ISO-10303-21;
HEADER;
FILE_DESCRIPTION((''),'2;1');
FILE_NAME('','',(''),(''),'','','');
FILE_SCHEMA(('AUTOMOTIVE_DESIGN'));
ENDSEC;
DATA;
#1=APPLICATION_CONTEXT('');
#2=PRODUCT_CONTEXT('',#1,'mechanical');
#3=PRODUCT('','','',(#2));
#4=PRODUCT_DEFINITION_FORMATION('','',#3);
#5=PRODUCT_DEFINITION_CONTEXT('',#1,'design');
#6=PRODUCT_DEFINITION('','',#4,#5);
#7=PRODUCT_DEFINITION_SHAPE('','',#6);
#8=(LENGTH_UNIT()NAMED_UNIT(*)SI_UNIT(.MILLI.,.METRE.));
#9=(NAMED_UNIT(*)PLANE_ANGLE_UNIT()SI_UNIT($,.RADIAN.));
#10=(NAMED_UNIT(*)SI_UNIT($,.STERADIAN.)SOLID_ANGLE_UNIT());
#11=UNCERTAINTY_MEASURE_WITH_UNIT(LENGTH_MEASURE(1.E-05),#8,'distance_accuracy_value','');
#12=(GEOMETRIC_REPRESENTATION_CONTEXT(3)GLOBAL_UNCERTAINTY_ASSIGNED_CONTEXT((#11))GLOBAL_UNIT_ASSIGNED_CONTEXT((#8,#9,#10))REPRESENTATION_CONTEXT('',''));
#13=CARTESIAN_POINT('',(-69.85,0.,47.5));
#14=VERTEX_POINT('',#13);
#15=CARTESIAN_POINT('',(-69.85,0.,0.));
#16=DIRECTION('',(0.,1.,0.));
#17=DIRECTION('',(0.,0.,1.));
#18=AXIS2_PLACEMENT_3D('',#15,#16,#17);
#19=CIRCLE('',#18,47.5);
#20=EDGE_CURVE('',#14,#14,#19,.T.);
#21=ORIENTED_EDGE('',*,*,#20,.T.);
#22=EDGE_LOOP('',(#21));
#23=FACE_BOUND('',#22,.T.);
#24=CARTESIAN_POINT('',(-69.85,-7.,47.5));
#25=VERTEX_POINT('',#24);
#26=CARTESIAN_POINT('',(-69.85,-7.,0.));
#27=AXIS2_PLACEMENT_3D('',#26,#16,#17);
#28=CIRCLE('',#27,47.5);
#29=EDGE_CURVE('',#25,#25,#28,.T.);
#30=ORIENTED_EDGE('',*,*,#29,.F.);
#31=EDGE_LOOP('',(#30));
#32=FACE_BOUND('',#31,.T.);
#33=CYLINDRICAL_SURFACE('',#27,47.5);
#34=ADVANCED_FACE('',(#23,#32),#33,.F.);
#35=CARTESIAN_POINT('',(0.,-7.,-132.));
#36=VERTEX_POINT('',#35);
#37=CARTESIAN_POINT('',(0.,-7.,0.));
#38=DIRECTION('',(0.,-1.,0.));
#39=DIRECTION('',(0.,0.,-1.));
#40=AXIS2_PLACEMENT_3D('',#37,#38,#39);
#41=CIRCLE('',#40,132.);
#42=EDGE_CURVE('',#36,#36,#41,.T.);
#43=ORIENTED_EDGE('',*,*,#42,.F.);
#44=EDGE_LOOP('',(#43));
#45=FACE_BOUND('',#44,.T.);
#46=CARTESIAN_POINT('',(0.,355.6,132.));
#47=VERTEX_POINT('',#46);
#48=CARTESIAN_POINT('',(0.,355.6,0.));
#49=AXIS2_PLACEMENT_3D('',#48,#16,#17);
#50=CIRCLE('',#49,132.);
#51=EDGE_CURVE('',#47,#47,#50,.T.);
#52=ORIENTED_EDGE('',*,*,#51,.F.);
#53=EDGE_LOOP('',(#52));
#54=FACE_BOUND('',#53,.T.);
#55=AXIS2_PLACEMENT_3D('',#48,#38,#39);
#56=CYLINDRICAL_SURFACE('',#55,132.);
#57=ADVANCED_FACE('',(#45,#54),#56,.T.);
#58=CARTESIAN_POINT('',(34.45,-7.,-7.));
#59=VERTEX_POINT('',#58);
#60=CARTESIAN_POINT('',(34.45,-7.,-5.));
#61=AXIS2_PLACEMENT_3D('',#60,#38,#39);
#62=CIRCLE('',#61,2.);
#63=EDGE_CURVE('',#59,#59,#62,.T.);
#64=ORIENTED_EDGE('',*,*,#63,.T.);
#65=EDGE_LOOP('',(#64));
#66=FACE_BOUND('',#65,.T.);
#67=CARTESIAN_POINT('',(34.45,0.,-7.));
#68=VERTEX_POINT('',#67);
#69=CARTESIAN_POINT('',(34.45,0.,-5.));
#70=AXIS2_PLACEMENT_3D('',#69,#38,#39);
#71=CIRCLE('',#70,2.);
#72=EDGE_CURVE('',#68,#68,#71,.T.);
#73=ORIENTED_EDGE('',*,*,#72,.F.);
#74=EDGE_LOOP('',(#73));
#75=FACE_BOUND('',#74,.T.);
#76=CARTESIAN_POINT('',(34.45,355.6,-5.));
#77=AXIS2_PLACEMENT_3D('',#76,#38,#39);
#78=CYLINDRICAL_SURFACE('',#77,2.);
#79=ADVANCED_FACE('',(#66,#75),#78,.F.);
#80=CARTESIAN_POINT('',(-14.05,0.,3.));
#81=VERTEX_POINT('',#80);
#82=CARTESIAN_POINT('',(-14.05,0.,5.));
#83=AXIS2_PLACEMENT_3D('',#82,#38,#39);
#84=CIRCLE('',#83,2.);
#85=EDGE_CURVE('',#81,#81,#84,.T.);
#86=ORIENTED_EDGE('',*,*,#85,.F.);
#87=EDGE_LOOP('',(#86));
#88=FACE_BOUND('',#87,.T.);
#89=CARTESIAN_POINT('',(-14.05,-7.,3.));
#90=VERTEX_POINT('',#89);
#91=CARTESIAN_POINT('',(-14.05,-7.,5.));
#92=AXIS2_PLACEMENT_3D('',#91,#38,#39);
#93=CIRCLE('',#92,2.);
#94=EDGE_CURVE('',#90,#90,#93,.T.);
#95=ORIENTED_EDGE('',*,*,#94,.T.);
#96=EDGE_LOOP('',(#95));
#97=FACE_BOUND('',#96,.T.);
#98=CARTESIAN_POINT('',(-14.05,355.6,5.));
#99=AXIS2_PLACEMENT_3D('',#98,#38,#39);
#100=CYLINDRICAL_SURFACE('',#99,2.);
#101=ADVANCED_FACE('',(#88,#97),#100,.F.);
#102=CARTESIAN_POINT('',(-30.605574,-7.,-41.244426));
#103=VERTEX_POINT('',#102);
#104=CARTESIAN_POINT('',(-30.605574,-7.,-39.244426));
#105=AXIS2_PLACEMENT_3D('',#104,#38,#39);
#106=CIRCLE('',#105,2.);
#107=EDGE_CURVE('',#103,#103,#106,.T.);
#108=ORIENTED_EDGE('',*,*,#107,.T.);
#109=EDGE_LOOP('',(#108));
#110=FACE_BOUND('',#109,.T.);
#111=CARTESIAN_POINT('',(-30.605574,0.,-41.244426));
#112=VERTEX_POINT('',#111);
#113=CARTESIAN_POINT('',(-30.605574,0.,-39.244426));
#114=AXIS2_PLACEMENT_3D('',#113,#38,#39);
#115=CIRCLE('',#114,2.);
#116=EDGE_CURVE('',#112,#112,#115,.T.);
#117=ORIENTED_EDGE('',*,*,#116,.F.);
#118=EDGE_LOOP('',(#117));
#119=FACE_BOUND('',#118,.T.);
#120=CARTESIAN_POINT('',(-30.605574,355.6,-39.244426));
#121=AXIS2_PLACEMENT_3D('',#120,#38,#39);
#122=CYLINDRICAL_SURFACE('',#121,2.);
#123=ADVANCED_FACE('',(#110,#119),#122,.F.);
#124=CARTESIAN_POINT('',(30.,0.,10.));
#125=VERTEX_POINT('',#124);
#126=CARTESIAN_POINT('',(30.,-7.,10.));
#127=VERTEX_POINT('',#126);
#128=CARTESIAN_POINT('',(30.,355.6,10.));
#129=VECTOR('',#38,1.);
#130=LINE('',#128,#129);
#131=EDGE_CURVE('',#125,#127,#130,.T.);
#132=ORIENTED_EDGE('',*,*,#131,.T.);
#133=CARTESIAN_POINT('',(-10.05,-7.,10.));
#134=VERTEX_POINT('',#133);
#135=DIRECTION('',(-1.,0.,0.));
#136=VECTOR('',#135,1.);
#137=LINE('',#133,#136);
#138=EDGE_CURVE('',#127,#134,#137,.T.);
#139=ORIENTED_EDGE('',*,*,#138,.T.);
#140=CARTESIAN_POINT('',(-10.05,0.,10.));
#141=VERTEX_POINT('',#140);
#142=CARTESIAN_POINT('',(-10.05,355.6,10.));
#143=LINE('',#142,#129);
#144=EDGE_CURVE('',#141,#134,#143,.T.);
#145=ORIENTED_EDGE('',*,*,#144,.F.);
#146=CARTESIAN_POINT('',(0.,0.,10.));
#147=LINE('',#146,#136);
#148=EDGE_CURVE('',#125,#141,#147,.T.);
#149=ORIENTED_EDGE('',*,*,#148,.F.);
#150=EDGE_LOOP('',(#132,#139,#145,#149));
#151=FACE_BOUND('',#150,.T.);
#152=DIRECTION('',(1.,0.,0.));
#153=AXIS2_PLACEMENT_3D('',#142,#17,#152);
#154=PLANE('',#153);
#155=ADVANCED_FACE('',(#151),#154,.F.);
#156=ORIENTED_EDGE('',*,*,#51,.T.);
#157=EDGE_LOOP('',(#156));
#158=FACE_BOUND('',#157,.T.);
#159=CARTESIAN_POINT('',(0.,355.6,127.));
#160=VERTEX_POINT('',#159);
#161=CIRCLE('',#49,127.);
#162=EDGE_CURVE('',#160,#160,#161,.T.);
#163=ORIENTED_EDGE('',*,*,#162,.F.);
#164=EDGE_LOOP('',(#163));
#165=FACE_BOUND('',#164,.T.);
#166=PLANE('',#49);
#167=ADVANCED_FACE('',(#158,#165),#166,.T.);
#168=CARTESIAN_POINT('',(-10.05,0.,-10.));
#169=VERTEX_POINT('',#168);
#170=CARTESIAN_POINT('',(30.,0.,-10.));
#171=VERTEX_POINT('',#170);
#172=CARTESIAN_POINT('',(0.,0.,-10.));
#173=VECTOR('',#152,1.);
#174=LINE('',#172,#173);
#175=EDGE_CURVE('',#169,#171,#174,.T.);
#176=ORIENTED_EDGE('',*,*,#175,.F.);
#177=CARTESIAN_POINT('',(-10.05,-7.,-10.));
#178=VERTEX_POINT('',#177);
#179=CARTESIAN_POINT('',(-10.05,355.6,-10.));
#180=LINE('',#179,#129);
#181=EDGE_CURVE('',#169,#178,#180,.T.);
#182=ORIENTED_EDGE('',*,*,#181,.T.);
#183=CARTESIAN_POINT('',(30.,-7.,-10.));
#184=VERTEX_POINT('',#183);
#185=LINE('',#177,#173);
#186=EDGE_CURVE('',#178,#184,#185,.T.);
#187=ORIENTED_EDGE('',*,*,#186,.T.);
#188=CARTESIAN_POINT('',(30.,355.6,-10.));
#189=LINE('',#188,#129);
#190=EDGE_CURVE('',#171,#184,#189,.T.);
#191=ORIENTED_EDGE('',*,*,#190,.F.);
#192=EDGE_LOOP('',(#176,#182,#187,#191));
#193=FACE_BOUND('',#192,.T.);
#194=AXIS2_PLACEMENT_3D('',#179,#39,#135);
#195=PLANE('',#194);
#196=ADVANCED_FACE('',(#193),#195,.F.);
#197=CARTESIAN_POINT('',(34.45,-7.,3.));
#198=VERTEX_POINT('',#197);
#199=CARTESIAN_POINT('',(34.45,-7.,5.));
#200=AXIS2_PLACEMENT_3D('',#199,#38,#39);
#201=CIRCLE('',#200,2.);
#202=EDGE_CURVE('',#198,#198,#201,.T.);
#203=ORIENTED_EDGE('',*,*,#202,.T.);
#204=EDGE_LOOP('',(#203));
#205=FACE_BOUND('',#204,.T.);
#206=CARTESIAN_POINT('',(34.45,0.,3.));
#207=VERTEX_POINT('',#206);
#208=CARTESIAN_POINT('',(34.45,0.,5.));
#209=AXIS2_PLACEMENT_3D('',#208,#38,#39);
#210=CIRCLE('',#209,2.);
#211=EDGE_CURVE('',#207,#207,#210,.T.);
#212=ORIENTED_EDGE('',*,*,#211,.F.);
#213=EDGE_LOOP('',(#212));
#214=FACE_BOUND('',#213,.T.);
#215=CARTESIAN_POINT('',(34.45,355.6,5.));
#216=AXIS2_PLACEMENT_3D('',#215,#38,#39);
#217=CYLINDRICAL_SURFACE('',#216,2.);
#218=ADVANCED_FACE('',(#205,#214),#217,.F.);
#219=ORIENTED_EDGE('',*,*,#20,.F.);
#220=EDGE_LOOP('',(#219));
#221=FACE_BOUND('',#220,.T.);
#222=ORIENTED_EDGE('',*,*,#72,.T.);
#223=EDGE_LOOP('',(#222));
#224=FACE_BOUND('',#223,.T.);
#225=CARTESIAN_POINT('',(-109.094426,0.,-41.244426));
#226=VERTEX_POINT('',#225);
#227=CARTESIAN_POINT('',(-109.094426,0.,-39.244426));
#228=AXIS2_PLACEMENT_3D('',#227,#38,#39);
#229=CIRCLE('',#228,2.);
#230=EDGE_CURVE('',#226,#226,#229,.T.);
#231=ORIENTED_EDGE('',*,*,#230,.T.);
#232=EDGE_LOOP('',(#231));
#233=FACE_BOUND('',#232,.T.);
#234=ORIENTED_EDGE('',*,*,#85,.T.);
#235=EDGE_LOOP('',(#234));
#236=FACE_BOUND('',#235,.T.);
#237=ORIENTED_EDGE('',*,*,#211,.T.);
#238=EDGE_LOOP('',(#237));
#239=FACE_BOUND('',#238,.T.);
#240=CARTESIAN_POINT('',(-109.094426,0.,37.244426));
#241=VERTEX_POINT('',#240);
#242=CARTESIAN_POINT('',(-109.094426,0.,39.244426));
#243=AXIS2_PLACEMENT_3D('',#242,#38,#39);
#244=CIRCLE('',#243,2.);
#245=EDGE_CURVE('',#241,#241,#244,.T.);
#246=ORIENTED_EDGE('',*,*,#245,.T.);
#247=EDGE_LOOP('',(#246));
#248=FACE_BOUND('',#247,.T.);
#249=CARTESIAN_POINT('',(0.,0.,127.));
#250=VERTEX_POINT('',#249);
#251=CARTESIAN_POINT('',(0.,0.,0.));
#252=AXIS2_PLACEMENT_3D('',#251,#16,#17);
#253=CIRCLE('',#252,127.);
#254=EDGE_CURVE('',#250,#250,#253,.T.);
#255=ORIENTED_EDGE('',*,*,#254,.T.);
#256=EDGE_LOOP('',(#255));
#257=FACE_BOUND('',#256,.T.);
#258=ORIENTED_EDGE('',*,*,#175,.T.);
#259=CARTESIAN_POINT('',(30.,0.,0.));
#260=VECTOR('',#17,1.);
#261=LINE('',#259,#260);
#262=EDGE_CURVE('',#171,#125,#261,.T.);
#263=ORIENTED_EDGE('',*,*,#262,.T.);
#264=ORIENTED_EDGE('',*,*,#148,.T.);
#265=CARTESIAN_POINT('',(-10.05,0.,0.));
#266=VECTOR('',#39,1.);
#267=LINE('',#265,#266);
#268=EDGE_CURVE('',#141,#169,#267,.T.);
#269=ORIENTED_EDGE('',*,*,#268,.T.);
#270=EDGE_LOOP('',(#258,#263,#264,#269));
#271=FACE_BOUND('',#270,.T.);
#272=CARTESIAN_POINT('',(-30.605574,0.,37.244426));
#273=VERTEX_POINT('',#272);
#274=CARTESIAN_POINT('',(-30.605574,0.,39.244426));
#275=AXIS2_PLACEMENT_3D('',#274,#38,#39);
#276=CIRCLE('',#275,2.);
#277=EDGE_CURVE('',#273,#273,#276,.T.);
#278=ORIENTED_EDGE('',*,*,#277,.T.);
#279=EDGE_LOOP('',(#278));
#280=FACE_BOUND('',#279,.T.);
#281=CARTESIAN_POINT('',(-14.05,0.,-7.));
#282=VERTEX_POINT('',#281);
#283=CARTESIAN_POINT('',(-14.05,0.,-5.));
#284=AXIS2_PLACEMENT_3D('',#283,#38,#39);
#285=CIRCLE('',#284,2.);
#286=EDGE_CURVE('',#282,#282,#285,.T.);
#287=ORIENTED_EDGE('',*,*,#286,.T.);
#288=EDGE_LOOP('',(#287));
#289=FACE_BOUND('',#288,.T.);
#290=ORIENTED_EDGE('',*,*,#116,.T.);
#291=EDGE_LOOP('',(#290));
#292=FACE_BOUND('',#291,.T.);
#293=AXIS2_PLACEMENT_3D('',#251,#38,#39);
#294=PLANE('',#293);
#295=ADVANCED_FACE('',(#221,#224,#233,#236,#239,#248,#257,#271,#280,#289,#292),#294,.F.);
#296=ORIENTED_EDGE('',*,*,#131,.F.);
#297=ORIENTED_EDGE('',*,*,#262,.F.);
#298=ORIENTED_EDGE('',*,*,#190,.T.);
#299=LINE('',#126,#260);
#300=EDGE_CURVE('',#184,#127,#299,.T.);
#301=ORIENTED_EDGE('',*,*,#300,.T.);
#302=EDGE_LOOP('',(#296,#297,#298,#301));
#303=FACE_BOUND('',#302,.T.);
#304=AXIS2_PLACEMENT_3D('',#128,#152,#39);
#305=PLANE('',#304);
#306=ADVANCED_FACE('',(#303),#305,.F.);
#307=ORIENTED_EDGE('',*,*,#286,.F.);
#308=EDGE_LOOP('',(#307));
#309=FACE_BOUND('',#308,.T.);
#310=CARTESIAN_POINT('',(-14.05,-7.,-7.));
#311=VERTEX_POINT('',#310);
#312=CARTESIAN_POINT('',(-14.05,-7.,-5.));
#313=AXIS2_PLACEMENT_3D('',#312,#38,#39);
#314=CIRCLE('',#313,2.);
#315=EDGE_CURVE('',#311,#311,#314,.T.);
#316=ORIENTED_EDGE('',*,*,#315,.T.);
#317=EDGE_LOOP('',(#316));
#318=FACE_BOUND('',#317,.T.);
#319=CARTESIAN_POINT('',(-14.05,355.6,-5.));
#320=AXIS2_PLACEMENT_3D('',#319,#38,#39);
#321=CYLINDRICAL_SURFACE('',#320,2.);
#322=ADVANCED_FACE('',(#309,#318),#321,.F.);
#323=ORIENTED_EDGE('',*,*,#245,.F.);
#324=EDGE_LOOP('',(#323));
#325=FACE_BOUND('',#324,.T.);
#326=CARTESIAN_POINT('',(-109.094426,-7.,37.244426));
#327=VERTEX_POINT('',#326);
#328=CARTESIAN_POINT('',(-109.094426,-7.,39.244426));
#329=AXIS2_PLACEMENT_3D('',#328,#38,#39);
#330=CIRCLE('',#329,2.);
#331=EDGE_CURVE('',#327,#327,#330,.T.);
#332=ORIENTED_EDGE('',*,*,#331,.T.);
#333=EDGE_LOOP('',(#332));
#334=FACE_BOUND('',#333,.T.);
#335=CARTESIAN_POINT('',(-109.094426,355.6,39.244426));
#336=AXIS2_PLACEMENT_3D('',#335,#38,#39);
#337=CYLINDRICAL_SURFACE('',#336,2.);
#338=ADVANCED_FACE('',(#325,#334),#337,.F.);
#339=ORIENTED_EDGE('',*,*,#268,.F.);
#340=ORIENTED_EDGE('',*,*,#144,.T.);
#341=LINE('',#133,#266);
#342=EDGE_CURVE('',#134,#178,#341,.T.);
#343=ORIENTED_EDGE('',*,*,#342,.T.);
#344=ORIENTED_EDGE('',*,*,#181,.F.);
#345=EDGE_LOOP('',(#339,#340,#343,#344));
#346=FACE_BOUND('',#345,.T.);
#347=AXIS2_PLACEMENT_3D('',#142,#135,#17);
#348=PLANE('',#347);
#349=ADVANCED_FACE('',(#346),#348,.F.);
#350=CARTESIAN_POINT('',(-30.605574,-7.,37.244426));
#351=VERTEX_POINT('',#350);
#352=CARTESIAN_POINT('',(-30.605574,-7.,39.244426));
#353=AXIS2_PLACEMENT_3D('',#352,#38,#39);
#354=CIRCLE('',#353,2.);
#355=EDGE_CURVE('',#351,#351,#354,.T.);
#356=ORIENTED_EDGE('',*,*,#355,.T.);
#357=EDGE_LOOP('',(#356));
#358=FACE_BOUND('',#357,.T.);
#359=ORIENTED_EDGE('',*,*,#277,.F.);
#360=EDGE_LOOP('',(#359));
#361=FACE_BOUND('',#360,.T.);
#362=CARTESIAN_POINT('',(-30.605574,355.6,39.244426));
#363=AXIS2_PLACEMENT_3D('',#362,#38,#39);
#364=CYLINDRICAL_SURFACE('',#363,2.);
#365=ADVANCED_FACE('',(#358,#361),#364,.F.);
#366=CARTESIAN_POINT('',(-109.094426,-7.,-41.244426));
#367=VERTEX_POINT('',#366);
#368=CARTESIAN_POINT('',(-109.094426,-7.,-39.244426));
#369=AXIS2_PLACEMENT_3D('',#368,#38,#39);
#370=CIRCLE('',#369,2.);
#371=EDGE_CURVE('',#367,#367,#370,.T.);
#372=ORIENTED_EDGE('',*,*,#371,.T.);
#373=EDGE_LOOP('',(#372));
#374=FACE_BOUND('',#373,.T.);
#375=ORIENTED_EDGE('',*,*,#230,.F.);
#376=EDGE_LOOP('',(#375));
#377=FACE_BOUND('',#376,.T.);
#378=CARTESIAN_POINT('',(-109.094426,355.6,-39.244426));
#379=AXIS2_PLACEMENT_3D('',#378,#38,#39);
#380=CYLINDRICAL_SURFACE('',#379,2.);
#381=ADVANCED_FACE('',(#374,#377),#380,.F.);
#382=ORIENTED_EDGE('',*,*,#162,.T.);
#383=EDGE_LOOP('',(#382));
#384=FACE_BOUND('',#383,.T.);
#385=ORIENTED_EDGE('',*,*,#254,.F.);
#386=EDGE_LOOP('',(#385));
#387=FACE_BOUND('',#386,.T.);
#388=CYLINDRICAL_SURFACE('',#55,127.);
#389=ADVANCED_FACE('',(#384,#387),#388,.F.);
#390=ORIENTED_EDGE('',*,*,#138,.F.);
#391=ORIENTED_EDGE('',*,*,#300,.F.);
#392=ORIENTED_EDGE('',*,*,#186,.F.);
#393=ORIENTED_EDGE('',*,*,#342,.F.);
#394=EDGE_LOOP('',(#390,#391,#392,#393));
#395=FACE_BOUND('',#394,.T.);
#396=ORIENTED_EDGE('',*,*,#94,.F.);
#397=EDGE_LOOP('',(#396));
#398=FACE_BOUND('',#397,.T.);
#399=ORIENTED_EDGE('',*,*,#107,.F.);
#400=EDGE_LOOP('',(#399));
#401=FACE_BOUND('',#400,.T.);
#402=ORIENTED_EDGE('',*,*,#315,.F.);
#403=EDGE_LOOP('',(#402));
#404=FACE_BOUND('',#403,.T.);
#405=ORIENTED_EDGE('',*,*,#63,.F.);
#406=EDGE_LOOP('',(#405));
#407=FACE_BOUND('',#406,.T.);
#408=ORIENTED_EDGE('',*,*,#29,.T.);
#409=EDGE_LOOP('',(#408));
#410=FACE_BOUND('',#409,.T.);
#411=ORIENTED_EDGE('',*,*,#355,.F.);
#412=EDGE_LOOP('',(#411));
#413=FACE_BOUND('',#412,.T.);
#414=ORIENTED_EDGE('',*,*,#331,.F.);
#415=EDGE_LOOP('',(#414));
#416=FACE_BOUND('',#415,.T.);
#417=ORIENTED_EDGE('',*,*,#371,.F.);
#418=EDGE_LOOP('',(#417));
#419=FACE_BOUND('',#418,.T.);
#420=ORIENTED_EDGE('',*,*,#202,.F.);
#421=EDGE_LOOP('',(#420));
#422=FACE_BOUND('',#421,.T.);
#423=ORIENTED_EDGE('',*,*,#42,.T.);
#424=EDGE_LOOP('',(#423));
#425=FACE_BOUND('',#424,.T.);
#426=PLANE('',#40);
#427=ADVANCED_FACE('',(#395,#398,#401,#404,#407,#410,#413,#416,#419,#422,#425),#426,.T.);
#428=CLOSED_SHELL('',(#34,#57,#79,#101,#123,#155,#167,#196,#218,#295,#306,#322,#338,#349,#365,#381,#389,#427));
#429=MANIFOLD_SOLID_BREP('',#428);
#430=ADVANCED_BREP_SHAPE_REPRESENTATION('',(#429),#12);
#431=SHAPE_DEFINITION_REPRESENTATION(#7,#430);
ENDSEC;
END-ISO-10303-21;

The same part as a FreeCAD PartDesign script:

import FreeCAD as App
import Part
import Sketcher
from FreeCAD import Vector

doc = App.newDocument("Part")
body = doc.addObject("PartDesign::Body", "Body")

sketch1 = body.newObject("Sketcher::SketchObject", "Sketch")
sketch1.AttachmentSupport = (doc.getObject("XZ_Plane"), [""])
sketch1.MapMode = "FlatFace"
sketch1.addGeometry([
    Part.Circle(Vector(0, 0, 0), Vector(0, 0, 1), 132),
    Part.Circle(Vector(0, 0, 0), Vector(0, 0, 1), 127),
], False)
sketch1.addConstraint([
    Sketcher.Constraint("Coincident", 0, 3, -1, 1),
    Sketcher.Constraint("Coincident", 1, 3, -1, 1),
    Sketcher.Constraint("Diameter", 0, 264.0),
    Sketcher.Constraint("Diameter", 1, 254.0),
])
pad1 = body.newObject("PartDesign::Pad", "Pad")
pad1.Profile = sketch1
pad1.Length = 355.6
pad1.Reversed = True

sketch2 = body.newObject("Sketcher::SketchObject", "Sketch001")
sketch2.AttachmentSupport = (doc.getObject("XZ_Plane"), [""])
sketch2.MapMode = "FlatFace"
sketch2.AttachmentOffset = App.Placement(Vector(0, 0, 7), App.Rotation())
sketch2.addGeometry(Part.Circle(Vector(0, 0, 0), Vector(0, 0, 1), 132), False)
sketch2.addConstraint([
    Sketcher.Constraint("Coincident", 0, 3, -1, 1),
    Sketcher.Constraint("Diameter", 0, 264.0),
])
pad2 = body.newObject("PartDesign::Pad", "Pad001")
pad2.Profile = sketch2
pad2.Length = 7
pad2.Reversed = True

sketch3 = body.newObject("Sketcher::SketchObject", "Sketch002")
sketch3.AttachmentSupport = (doc.getObject("XZ_Plane"), [""])
sketch3.MapMode = "FlatFace"
sketch3.AttachmentOffset = App.Placement(Vector(0, 0, 7), App.Rotation())
sketch3.addGeometry([
    Part.Circle(Vector(-14.1, 5, 0), Vector(0, 0, 1), 2),
    Part.Circle(Vector(-14.1, -5, 0), Vector(0, 0, 1), 2),
    Part.Circle(Vector(34.5, 5, 0), Vector(0, 0, 1), 2),
    Part.Circle(Vector(34.5, -5, 0), Vector(0, 0, 1), 2),
    Part.LineSegment(Vector(-10.1, 10, 0), Vector(-10.1, -10, 0)),
    Part.LineSegment(Vector(-10.1, -10, 0), Vector(30, -10, 0)),
    Part.LineSegment(Vector(30, -10, 0), Vector(30, 10, 0)),
    Part.LineSegment(Vector(30, 10, 0), Vector(-10.1, 10, 0)),
], False)
sketch3.addConstraint([
    Sketcher.Constraint("Coincident", 4, 2, 5, 1),
    Sketcher.Constraint("Coincident", 5, 2, 6, 1),
    Sketcher.Constraint("Coincident", 6, 2, 7, 1),
    Sketcher.Constraint("Coincident", 7, 2, 4, 1),
    Sketcher.Constraint("Vertical", 4),
    Sketcher.Constraint("Horizontal", 5),
    Sketcher.Constraint("Vertical", 6),
    Sketcher.Constraint("Horizontal", 7),
    Sketcher.Constraint("Equal", 0, 1),
    Sketcher.Constraint("Equal", 1, 2),
    Sketcher.Constraint("Equal", 2, 3),
    Sketcher.Constraint("Symmetric", 0, 3, 1, 3, -1),
    Sketcher.Constraint("Symmetric", 2, 3, 3, 3, -1),
    Sketcher.Constraint("Horizontal", 0, 3, 2, 3),
    Sketcher.Constraint("Diameter", 0, 4.0),
    Sketcher.Constraint("DistanceY", 4, 2, 4, 1, 20.0),
    Sketcher.Constraint("DistanceY", -1, 1, 0, 3, 5.0),
    Sketcher.Constraint("DistanceY", 4, 2, -1, 1, 10.0),
    Sketcher.Constraint("DistanceX", -1, 1, 5, 2, 30.0),
    Sketcher.Constraint("DistanceX", 1, 3, 4, 2, 4.0),
    Sketcher.Constraint("DistanceX", 5, 1, 5, 2, 40.05),
    Sketcher.Constraint("DistanceX", 0, 3, 2, 3, 48.5),
])
pocket1 = body.newObject("PartDesign::Pocket", "Pocket")
pocket1.Profile = sketch3
pocket1.Type = "ThroughAll"

sketch4 = body.newObject("Sketcher::SketchObject", "Sketch003")
sketch4.AttachmentSupport = (doc.getObject("XZ_Plane"), [""])
sketch4.MapMode = "FlatFace"
sketch4.addGeometry(Part.Circle(Vector(-70, 0, 0), Vector(0, 0, 1), 48), False)
sketch4.addConstraint([
    Sketcher.Constraint("PointOnObject", 0, 3, -1),
    Sketcher.Constraint("Diameter", 0, 95.0),
    Sketcher.Constraint("DistanceX", 0, 3, -1, 1, 69.85),
])
pocket2 = body.newObject("PartDesign::Pocket", "Pocket001")
pocket2.Profile = sketch4
pocket2.Type = "ThroughAll"
pocket2.Reversed = True

sketch5 = body.newObject("Sketcher::SketchObject", "Sketch004")
sketch5.AttachmentSupport = (doc.getObject("XZ_Plane"), [""])
sketch5.MapMode = "FlatFace"
sketch5.AttachmentOffset = App.Placement(Vector(0, 0, 7), App.Rotation())
sketch5.addGeometry([
    Part.Circle(Vector(-30.6, 39.2, 0), Vector(0, 0, 1), 2),
    Part.Circle(Vector(-30.6, -39.2, 0), Vector(0, 0, 1), 2),
    Part.Circle(Vector(-109.1, 39.2, 0), Vector(0, 0, 1), 2),
    Part.Circle(Vector(-109.1, -39.2, 0), Vector(0, 0, 1), 2),
], False)
sketch5.addConstraint([
    Sketcher.Constraint("Equal", 0, 1),
    Sketcher.Constraint("Equal", 1, 2),
    Sketcher.Constraint("Equal", 2, 3),
    Sketcher.Constraint("Symmetric", 0, 3, 1, 3, -1),
    Sketcher.Constraint("Symmetric", 2, 3, 3, 3, -1),
    Sketcher.Constraint("Horizontal", 0, 3, 2, 3),
    Sketcher.Constraint("Diameter", 0, 4.0),
    Sketcher.Constraint("DistanceX", 0, 3, -1, 1, 30.605574),
    Sketcher.Constraint("DistanceY", -1, 1, 0, 3, 39.244426),
    Sketcher.Constraint("DistanceX", 2, 3, -1, 1, 109.094426),
])
pocket3 = body.newObject("PartDesign::Pocket", "Pocket002")
pocket3.Profile = sketch5
pocket3.Type = "ThroughAll"

doc.recompute()
